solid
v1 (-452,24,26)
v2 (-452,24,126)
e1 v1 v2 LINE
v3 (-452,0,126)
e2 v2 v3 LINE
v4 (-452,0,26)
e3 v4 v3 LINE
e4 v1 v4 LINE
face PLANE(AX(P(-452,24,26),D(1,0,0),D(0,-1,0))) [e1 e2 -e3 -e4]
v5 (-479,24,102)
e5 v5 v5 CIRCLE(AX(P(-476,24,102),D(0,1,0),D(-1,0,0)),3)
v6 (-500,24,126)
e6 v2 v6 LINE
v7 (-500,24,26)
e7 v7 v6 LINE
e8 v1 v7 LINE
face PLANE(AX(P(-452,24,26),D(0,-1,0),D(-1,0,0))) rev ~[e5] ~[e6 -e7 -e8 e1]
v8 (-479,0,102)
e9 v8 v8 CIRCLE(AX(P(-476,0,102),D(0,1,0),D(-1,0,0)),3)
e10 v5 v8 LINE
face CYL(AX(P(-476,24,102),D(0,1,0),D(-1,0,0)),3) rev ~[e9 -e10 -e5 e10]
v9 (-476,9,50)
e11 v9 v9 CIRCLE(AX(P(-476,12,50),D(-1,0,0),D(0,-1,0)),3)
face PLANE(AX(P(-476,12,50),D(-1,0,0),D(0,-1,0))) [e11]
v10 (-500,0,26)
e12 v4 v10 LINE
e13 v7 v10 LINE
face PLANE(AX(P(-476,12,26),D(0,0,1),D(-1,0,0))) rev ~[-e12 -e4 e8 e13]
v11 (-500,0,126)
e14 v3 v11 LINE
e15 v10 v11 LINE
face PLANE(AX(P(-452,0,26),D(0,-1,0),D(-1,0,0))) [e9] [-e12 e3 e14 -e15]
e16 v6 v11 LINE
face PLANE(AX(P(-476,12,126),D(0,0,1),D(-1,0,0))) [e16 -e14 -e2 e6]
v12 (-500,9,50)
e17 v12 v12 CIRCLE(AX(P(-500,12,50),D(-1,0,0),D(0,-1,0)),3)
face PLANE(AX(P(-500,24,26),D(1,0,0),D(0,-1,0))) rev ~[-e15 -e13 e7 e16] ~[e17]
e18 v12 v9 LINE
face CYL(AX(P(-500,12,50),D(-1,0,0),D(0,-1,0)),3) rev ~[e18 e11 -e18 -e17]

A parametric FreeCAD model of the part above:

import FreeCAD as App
import Part
import Sketcher

V = App.Vector
Q = App.Units.Quantity

doc = App.newDocument("Part")
body = doc.addObject("PartDesign::Body", "Body")

# Sketch on XY plane
sketch1 = body.newObject("Sketcher::SketchObject", "Sketch")
sketch1.AttachmentSupport = (doc.getObject("XY_Plane"), [""])
sketch1.MapMode = "FlatFace"
sketch1.addGeometry([
    Part.LineSegment(V(0, 24, 0), V(0, 0, 0)),
    Part.LineSegment(V(0, 0, 0), V(48, 0, 0)),
    Part.LineSegment(V(48, 0, 0), V(48, 24, 0)),
    Part.LineSegment(V(48, 24, 0), V(0, 24, 0)),
], False)
sketch1.addConstraint([
    Sketcher.Constraint("Coincident", 0, 2, 1, 1),
    Sketcher.Constraint("Coincident", 1, 2, 2, 1),
    Sketcher.Constraint("Coincident", 2, 2, 3, 1),
    Sketcher.Constraint("Coincident", 3, 2, 0, 1),
    Sketcher.Constraint("Vertical", 0),
    Sketcher.Constraint("Horizontal", 1),
    Sketcher.Constraint("Vertical", 2),
    Sketcher.Constraint("Horizontal", 3),
    Sketcher.Constraint("Coincident", 0, 2, -1, 1),
    Sketcher.Constraint("DistanceX", 1, 1, 1, 2, Q("48 mm")),
    Sketcher.Constraint("DistanceY", 0, 2, 0, 1, Q("24 mm")),
])
pad1 = body.newObject("PartDesign::Pad", "Pad")
pad1.Profile = sketch1
pad1.Length = 100

# Sketch on YZ plane
sketch2 = body.newObject("Sketcher::SketchObject", "Sketch001")
sketch2.AttachmentSupport = (doc.getObject("YZ_Plane"), [""])
sketch2.MapMode = "FlatFace"
sketch2.AttachmentOffset = App.Placement(V(0, 0, 48), App.Rotation())
sketch2.addGeometry(Part.Circle(V(12, 24, 0), V(0, 0, 1), 3), False)
sketch2.addConstraint([
    Sketcher.Constraint("Diameter", 0, Q("6 mm")),
    Sketcher.Constraint("DistanceX", -1, 1, 0, 3, Q("12 mm")),
    Sketcher.Constraint("DistanceY", -1, 1, 0, 3, Q("24 mm")),
])
pocket1 = body.newObject("PartDesign::Pocket", "Pocket")
pocket1.Profile = sketch2
pocket1.Length = 24

# Sketch on XZ plane
sketch3 = body.newObject("Sketcher::SketchObject", "Sketch002")
sketch3.AttachmentSupport = (doc.getObject("XZ_Plane"), [""])
sketch3.MapMode = "FlatFace"
sketch3.addGeometry(Part.Circle(V(24, 76, 0), V(0, 0, 1), 3), False)
sketch3.addConstraint([
    Sketcher.Constraint("Diameter", 0, Q("6 mm")),
    Sketcher.Constraint("DistanceX", -1, 1, 0, 3, Q("24 mm")),
    Sketcher.Constraint("DistanceY", -1, 1, 0, 3, Q("76 mm")),
])
pocket2 = body.newObject("PartDesign::Pocket", "Pocket001")
pocket2.Profile = sketch3
pocket2.Type = "ThroughAll"
body2 = doc.addObject("PartDesign::Body", "Body001")
doc.recompute()

body.Placement = App.Placement(V(-452, 24, 26), App.Rotation(V(0, 0, 1), 180))
boolean = body2.newObject("PartDesign::Boolean", "Boolean")
boolean.Type = "Fuse"
boolean.addObjects([body])

doc.recompute()
